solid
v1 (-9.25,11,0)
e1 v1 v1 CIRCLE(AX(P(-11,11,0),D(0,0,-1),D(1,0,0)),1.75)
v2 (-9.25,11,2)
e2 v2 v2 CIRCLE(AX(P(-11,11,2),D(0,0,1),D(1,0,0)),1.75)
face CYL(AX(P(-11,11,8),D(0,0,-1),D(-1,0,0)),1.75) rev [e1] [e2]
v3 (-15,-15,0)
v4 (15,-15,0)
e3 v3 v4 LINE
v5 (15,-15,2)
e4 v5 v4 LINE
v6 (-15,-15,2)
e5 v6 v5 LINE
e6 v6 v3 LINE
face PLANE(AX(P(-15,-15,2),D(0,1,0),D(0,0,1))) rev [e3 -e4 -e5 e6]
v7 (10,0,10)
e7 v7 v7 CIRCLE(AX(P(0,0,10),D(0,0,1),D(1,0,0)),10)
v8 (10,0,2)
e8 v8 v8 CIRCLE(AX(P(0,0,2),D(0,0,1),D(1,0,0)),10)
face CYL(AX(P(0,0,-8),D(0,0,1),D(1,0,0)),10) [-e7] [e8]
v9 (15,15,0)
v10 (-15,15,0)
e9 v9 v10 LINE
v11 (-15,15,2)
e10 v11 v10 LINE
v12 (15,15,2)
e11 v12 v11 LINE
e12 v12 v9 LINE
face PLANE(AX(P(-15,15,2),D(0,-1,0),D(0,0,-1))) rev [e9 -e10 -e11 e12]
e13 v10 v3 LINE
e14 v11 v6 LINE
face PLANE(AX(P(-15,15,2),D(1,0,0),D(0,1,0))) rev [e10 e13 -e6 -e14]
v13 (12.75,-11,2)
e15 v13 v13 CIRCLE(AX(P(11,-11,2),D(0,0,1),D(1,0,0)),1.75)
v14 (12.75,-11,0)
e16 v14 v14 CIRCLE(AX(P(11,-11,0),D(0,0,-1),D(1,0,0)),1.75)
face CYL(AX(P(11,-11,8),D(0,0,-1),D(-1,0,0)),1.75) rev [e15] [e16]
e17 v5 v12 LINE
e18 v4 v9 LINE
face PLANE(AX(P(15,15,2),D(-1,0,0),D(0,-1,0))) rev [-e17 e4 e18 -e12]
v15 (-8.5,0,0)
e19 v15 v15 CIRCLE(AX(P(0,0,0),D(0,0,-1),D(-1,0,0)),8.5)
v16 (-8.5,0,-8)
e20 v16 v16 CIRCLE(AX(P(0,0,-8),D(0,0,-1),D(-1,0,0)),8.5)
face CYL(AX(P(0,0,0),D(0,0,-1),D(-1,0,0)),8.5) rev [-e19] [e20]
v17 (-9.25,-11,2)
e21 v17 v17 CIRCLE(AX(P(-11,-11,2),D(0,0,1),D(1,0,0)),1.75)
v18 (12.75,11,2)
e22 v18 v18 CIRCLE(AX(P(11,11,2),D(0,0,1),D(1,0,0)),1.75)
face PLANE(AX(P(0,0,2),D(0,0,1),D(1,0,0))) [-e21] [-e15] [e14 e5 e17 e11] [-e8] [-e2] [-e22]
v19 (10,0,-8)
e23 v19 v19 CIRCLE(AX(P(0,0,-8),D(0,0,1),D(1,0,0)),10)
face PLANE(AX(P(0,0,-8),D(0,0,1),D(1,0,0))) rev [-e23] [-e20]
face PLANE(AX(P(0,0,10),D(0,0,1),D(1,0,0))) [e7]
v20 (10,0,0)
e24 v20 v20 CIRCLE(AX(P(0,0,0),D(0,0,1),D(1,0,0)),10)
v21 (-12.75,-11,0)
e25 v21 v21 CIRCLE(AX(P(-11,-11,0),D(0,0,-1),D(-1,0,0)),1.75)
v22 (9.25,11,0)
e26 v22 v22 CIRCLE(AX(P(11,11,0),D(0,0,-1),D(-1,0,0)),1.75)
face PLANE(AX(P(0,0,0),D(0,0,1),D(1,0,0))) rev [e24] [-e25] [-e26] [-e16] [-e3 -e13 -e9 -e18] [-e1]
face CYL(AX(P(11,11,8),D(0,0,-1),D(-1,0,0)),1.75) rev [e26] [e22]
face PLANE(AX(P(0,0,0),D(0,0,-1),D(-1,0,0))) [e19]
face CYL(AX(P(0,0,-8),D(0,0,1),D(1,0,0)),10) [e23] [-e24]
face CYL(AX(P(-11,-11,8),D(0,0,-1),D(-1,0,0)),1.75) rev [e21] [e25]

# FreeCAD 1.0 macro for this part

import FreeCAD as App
import Part
import Sketcher

V = App.Vector


def add_polygon(sketch, points):
    """Adds a closed chain of lines whose ends are joined by coincident constraints."""
    first, n = sketch.GeometryCount, len(points)
    for a, b in zip(points, points[1:] + points[:1]):
        sketch.addGeometry(Part.LineSegment(App.Vector(*a, 0), App.Vector(*b, 0)), False)
    for i in range(n):
        sketch.addConstraint(Sketcher.Constraint("Coincident", first + i, 2, first + (i + 1) % n, 1))

doc = App.newDocument("Part")
body = doc.addObject("PartDesign::Body", "Body")

# Sketch on XY plane
sketch1 = body.newObject("Sketcher::SketchObject", "Sketch")
sketch1.AttachmentSupport = (doc.getObject("XY_Plane"), [""])
sketch1.MapMode = "FlatFace"
add_polygon(sketch1, [(-15, 15), (-15, -15), (15, -15), (15, 15)])  # lines 0-3
sketch1.addConstraint(Sketcher.Constraint("Vertical", 0))
sketch1.addConstraint(Sketcher.Constraint("Horizontal", 1))
sketch1.addConstraint(Sketcher.Constraint("Vertical", 2))
sketch1.addConstraint(Sketcher.Constraint("Horizontal", 3))
sketch1.addConstraint(Sketcher.Constraint("Symmetric", 0, 2, 2, 2, -1, 1))
sketch1.addConstraint(Sketcher.Constraint("Equal", 3, 0))
sketch1.addConstraint(Sketcher.Constraint("DistanceX", 1, 1, 1, 2, 30.0))
pad1 = body.newObject("PartDesign::Pad", "Pad")
pad1.Profile = sketch1
pad1.Length = 2

# Sketch on XY plane
sketch2 = body.newObject("Sketcher::SketchObject", "Sketch001")
sketch2.AttachmentSupport = (doc.getObject("XY_Plane"), [""])
sketch2.MapMode = "FlatFace"
sketch2.AttachmentOffset = App.Placement(V(0, 0, 2), App.Rotation())
sketch2.addGeometry(Part.Circle(V(0, 0, 0), V(0, 0, 1), 10), False)
sketch2.addConstraint(Sketcher.Constraint("Coincident", 0, 3, -1, 1))
sketch2.addConstraint(Sketcher.Constraint("Diameter", 0, 20.0))
pad2 = body.newObject("PartDesign::Pad", "Pad001")
pad2.Profile = sketch2
pad2.Type = "TwoLengths"
pad2.Length = 8
pad2.Length2 = 10

# Sketch on XY plane
sketch3 = body.newObject("Sketcher::SketchObject", "Sketch002")
sketch3.AttachmentSupport = (doc.getObject("XY_Plane"), [""])
sketch3.MapMode = "FlatFace"
sketch3.AttachmentOffset = App.Placement(V(0, 0, -8), App.Rotation())
sketch3.addGeometry(Part.Circle(V(0, 0, 0), V(0, 0, 1), 8), False)
sketch3.addConstraint(Sketcher.Constraint("Coincident", 0, 3, -1, 1))
sketch3.addConstraint(Sketcher.Constraint("Diameter", 0, 17.0))
pocket1 = body.newObject("PartDesign::Pocket", "Pocket")
pocket1.Profile = sketch3
pocket1.Length = 8
pocket1.Reversed = True

# Sketch on XY plane
sketch4 = body.newObject("Sketcher::SketchObject", "Sketch003")
sketch4.AttachmentSupport = (doc.getObject("XY_Plane"), [""])
sketch4.MapMode = "FlatFace"
sketch4.addGeometry(Part.Circle(V(11, 11, 0), V(0, 0, 1), 1.8), False)
sketch4.addGeometry(Part.Circle(V(-11, 11, 0), V(0, 0, 1), 1.8), False)
sketch4.addGeometry(Part.Circle(V(-11, -11, 0), V(0, 0, 1), 1.8), False)
sketch4.addGeometry(Part.Circle(V(11, -11, 0), V(0, 0, 1), 1.8), False)
sketch4.addConstraint(Sketcher.Constraint("Equal", 0, 1))
sketch4.addConstraint(Sketcher.Constraint("Equal", 1, 2))
sketch4.addConstraint(Sketcher.Constraint("Equal", 2, 3))
sketch4.addConstraint(Sketcher.Constraint("Symmetric", 0, 3, 2, 3, -1, 1))
sketch4.addConstraint(Sketcher.Constraint("Symmetric", 1, 3, 3, 3, -1, 1))
sketch4.addConstraint(Sketcher.Constraint("Symmetric", 0, 3, 1, 3, -2))
sketch4.addConstraint(Sketcher.Constraint("Diameter", 0, 3.5))
sketch4.addConstraint(Sketcher.Constraint("DistanceX", -1, 1, 0, 3, 11.0))
sketch4.addConstraint(Sketcher.Constraint("DistanceY", -1, 1, 0, 3, 11.0))
pocket2 = body.newObject("PartDesign::Pocket", "Pocket001")
pocket2.Profile = sketch4
pocket2.Length = 8
pocket2.Reversed = True

doc.recompute()
